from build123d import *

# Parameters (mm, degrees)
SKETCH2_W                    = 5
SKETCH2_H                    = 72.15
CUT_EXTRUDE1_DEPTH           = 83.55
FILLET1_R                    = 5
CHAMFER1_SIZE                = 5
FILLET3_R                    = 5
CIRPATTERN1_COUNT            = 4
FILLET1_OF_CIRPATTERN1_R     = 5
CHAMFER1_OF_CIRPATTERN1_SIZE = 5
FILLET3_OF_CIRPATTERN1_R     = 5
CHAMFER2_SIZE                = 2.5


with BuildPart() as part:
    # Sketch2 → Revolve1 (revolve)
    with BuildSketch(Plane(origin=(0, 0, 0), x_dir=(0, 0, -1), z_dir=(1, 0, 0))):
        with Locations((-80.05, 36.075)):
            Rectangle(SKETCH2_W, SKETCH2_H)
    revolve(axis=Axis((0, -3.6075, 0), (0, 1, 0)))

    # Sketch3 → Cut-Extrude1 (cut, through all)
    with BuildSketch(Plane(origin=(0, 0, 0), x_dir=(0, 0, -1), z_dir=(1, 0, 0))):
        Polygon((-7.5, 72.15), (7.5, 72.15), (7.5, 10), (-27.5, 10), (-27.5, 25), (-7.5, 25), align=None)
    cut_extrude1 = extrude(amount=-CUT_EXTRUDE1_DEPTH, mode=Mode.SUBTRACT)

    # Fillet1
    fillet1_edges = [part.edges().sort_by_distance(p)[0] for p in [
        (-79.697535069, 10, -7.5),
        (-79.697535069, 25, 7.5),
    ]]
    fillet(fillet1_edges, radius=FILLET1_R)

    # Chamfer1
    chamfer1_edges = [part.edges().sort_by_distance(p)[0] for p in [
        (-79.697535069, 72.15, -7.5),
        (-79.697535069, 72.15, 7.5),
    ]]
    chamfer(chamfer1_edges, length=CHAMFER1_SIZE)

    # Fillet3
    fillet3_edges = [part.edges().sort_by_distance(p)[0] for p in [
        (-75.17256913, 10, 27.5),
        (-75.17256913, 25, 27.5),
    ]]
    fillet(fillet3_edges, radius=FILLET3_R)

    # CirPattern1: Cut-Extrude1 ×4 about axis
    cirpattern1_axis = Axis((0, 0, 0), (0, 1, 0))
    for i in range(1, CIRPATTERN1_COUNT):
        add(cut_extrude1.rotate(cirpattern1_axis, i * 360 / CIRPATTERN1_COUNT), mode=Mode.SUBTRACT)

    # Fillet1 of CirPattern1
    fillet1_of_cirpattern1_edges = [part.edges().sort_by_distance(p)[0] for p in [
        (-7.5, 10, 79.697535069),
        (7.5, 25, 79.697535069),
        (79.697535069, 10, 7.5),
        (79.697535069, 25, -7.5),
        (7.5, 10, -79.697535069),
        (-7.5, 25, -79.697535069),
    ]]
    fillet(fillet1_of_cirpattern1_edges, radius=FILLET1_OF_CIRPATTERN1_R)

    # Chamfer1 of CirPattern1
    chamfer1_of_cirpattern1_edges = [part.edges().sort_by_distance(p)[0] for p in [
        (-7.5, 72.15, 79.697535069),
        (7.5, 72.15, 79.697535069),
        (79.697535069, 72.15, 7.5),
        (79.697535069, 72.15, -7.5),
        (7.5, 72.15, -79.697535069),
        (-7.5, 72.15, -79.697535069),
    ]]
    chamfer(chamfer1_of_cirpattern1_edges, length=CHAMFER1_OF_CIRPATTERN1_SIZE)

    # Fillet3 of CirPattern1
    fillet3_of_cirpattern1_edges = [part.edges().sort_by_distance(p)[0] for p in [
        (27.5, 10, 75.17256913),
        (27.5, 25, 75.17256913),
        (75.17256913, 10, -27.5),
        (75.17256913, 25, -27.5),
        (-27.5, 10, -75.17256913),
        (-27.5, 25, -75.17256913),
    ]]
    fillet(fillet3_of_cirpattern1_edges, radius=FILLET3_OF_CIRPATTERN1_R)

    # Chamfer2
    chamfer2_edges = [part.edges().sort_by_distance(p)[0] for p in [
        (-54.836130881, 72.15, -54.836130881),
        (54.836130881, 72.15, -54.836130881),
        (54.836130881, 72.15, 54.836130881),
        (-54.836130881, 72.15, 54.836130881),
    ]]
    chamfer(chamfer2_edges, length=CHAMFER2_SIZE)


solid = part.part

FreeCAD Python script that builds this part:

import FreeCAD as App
import Part
import Sketcher
from FreeCAD import Vector
Q = App.Units.Quantity


def edges_at(feature, points):
    """Names of the edges that pass closest to the given points."""
    edges = feature.Shape.Edges
    near = lambda p: min(range(len(edges)), key=lambda i: edges[i].distToShape(Part.Vertex(*p))[0])
    return sorted({f"Edge{near(p) + 1}" for p in points})


def add_polygon(sketch, points):
    """Adds a closed chain of lines whose ends are joined by coincident constraints."""
    first, n = sketch.GeometryCount, len(points)
    for a, b in zip(points, points[1:] + points[:1]):
        sketch.addGeometry(Part.LineSegment(App.Vector(*a, 0), App.Vector(*b, 0)), False)
    for i in range(n):
        sketch.addConstraint(Sketcher.Constraint("Coincident", first + i, 2, first + (i + 1) % n, 1))

doc = App.newDocument("Part")
body = doc.addObject("PartDesign::Body", "Body")

sketch1 = body.newObject("Sketcher::SketchObject", "Sketch")
sketch1.AttachmentSupport = (doc.getObject("YZ_Plane"), [""])
sketch1.MapMode = "FlatFace"
add_polygon(sketch1, [(72, 83), (0, 83), (0, 78), (72, 78)])
sketch1.addConstraint(Sketcher.Constraint("Horizontal", 0))
sketch1.addConstraint(Sketcher.Constraint("Vertical", 1))
sketch1.addConstraint(Sketcher.Constraint("Horizontal", 2))
sketch1.addConstraint(Sketcher.Constraint("Vertical", 3))
sketch1.addConstraint(Sketcher.Constraint("PointOnObject", 0, 2, -2))
sketch1.addConstraint(Sketcher.Constraint("DistanceY", 1, 2, 1, 1, Q("5 mm")))
sketch1.addConstraint(Sketcher.Constraint("DistanceX", 0, 2, 0, 1, Q("72.15 mm")))
sketch1.addConstraint(Sketcher.Constraint("DistanceY", -1, 1, 0, 2, Q("82.55 mm")))
revolution = body.newObject("PartDesign::Revolution", "Revolution")
revolution.Profile = sketch1
revolution.ReferenceAxis = (sketch1, ["H_Axis"])
revolution.Angle = 360

sketch2 = body.newObject("Sketcher::SketchObject", "Sketch001")
sketch2.AttachmentSupport = (doc.getObject("YZ_Plane"), [""])
sketch2.MapMode = "FlatFace"
add_polygon(sketch2, [(72, -8), (72, 8), (25, 8), (25, 28), (10, 28), (10, -8)])
sketch2.addConstraint(Sketcher.Constraint("Vertical", 0))
sketch2.addConstraint(Sketcher.Constraint("Horizontal", 1))
sketch2.addConstraint(Sketcher.Constraint("Vertical", 2))
sketch2.addConstraint(Sketcher.Constraint("Horizontal", 3))
sketch2.addConstraint(Sketcher.Constraint("Vertical", 4))
sketch2.addConstraint(Sketcher.Constraint("Horizontal", 5))
sketch2.addConstraint(Sketcher.Constraint("Equal", 3, 0))
sketch2.addConstraint(Sketcher.Constraint("DistanceX", 3, 2, 3, 1, Q("15 mm")))
sketch2.addConstraint(Sketcher.Constraint("DistanceY", 2, 1, 2, 2, Q("20 mm")))
sketch2.addConstraint(Sketcher.Constraint("DistanceX", -1, 1, 1, 2, Q("25 mm")))
sketch2.addConstraint(Sketcher.Constraint("DistanceX", 1, 2, 1, 1, Q("47.15 mm")))
sketch2.addConstraint(Sketcher.Constraint("DistanceY", -1, 1, 0, 2, Q("7.5 mm")))
pocket1 = body.newObject("PartDesign::Pocket", "Pocket")
pocket1.Profile = sketch2
pocket1.Type = "ThroughAll"
doc.recompute()

fillet = body.newObject("PartDesign::Fillet", "Fillet")
fillet.Base = (pocket1, edges_at(pocket1, [(-79.698, 10, -7.5), (-79.698, 25, 7.5)]))
fillet.Radius = 5
doc.recompute()

chamfer = body.newObject("PartDesign::Chamfer", "Chamfer")
chamfer.Base = (fillet, edges_at(fillet, [(-79.698, 72.15, -7.5), (-79.698, 72.15, 7.5)]))
chamfer.Size = 5
doc.recompute()

fillet2 = body.newObject("PartDesign::Fillet", "Fillet001")
fillet2.Base = (chamfer, edges_at(chamfer, [(-75.173, 10, 27.5), (-75.173, 25, 27.5)]))
fillet2.Radius = 5
doc.recompute()

polarpattern = body.newObject("PartDesign::PolarPattern", "PolarPattern")
polarpattern.Originals = [pocket1]
polarpattern.Axis = (doc.getObject("Y_Axis"), [""])
polarpattern.Angle = 360
polarpattern.Occurrences = 4
body.Tip = polarpattern
doc.recompute()

fillet3 = body.newObject("PartDesign::Fillet", "Fillet002")
fillet3.Base = (polarpattern, edges_at(polarpattern, [
    (-7.5, 10, 79.698),
    (7.5, 25, 79.698),
    (79.698, 10, 7.5),
    (79.698, 25, -7.5),
    (7.5, 10, -79.698),
    (-7.5, 25, -79.698),
]))
fillet3.Radius = 5
doc.recompute()

chamfer2 = body.newObject("PartDesign::Chamfer", "Chamfer001")
chamfer2.Base = (fillet3, edges_at(fillet3, [
    (-7.5, 72.15, 79.698),
    (7.5, 72.15, 79.698),
    (79.698, 72.15, 7.5),
    (79.698, 72.15, -7.5),
    (7.5, 72.15, -79.698),
    (-7.5, 72.15, -79.698),
]))
chamfer2.Size = 5
doc.recompute()

fillet4 = body.newObject("PartDesign::Fillet", "Fillet003")
fillet4.Base = (chamfer2, edges_at(chamfer2, [
    (27.5, 10, 75.173),
    (27.5, 25, 75.173),
    (75.173, 10, -27.5),
    (75.173, 25, -27.5),
    (-27.5, 10, -75.173),
    (-27.5, 25, -75.173),
]))
fillet4.Radius = 5
doc.recompute()

chamfer3 = body.newObject("PartDesign::Chamfer", "Chamfer002")
chamfer3.Base = (fillet4, edges_at(fillet4, [
    (-54.836, 72.15, -54.836),
    (54.836, 72.15, -54.836),
    (54.836, 72.15, 54.836),
    (-54.836, 72.15, 54.836),
]))
chamfer3.Size = 2.5

doc.recompute()
